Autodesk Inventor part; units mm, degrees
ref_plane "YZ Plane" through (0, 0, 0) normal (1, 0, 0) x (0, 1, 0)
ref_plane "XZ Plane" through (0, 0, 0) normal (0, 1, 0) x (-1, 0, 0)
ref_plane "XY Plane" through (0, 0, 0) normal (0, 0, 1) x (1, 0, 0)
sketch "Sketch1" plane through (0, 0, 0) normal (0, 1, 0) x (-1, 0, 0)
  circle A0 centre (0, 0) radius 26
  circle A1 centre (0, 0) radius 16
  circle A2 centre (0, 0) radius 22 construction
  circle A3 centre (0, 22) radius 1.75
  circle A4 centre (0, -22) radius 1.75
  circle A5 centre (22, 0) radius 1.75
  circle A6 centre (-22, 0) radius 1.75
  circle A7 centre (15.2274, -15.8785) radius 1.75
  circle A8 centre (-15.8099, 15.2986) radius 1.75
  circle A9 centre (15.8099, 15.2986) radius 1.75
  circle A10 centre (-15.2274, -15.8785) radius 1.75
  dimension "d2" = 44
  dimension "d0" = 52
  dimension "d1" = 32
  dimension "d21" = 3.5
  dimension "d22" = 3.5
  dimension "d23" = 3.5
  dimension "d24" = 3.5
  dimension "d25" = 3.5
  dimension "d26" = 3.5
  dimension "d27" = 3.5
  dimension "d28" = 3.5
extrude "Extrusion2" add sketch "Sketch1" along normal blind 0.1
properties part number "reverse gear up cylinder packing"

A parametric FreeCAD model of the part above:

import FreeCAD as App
import Part
import Sketcher
Q = App.Units.Quantity

doc = App.newDocument("Part")
body = doc.addObject("PartDesign::Body", "Body")

sketch1 = doc.addObject("Sketcher::SketchObject", "Sketch")
body.addObject(sketch1)
sketch1.AttachmentSupport = (doc.XZ_Plane, [""])
sketch1.MapMode = "FlatFace"
sketch1.addGeometry([
    Part.Circle(App.Vector(0, 0, 0), App.Vector(0, 0, 1), 26),
    Part.Circle(App.Vector(15.2274, -15.8785, 0), App.Vector(0, 0, 1), 1.75),
    Part.Circle(App.Vector(0, -22, 0), App.Vector(0, 0, 1), 1.75),
    Part.Circle(App.Vector(-15.2274, -15.8785, 0), App.Vector(0, 0, 1), 1.75),
    Part.Circle(App.Vector(22, 0, 0), App.Vector(0, 0, 1), 1.75),
    Part.Circle(App.Vector(15.8099, 15.2986, 0), App.Vector(0, 0, 1), 1.75),
    Part.Circle(App.Vector(0, 0, 0), App.Vector(0, 0, 1), 16),
    Part.Circle(App.Vector(-22, 0, 0), App.Vector(0, 0, 1), 1.75),
    Part.Circle(App.Vector(0, 22, 0), App.Vector(0, 0, 1), 1.75),
    Part.Circle(App.Vector(-15.8099, 15.2986, 0), App.Vector(0, 0, 1), 1.75),
], False)
sketch1.addConstraint([
    Sketcher.Constraint("Coincident", 0, 3, -1, 1),
    Sketcher.Constraint("Coincident", 6, 3, -1, 1),
    Sketcher.Constraint("Equal", 1, 2),
    Sketcher.Constraint("Equal", 2, 3),
    Sketcher.Constraint("Equal", 3, 4),
    Sketcher.Constraint("Equal", 4, 5),
    Sketcher.Constraint("Equal", 5, 7),
    Sketcher.Constraint("Equal", 7, 8),
    Sketcher.Constraint("Equal", 8, 9),
    Sketcher.Constraint("Symmetric", 4, 3, 7, 3, -1, 1),
    Sketcher.Constraint("Symmetric", 2, 3, 8, 3, -1, 1),
    Sketcher.Constraint("Symmetric", 1, 3, 3, 3, -2),
    Sketcher.Constraint("Symmetric", 5, 3, 9, 3, -2),
    Sketcher.Constraint("PointOnObject", 2, 3, -2),
    Sketcher.Constraint("PointOnObject", 4, 3, -1),
    Sketcher.Constraint("Diameter", 0, Q("52 mm")),
    Sketcher.Constraint("Diameter", 6, Q("32 mm")),
    Sketcher.Constraint("Diameter", 1, Q("3.5 mm")),
    Sketcher.Constraint("DistanceY", 2, 3, -1, 1, Q("22 mm")),
    Sketcher.Constraint("DistanceX", -1, 1, 4, 3, Q("22 mm")),
    Sketcher.Constraint("DistanceX", -1, 1, 5, 3, Q("15.81 mm")),
    Sketcher.Constraint("DistanceY", 1, 3, 5, 3, Q("31.177 mm")),
    Sketcher.Constraint("DistanceX", -1, 1, 1, 3, Q("15.2274 mm")),
    Sketcher.Constraint("DistanceY", 1, 3, -1, 1, Q("15.8785 mm")),
])
pad1 = doc.addObject("PartDesign::Pad", "Pad")
body.addObject(pad1)
pad1.Profile = sketch1
pad1.Length = 0.1
pad1.Reversed = True

doc.recompute()
